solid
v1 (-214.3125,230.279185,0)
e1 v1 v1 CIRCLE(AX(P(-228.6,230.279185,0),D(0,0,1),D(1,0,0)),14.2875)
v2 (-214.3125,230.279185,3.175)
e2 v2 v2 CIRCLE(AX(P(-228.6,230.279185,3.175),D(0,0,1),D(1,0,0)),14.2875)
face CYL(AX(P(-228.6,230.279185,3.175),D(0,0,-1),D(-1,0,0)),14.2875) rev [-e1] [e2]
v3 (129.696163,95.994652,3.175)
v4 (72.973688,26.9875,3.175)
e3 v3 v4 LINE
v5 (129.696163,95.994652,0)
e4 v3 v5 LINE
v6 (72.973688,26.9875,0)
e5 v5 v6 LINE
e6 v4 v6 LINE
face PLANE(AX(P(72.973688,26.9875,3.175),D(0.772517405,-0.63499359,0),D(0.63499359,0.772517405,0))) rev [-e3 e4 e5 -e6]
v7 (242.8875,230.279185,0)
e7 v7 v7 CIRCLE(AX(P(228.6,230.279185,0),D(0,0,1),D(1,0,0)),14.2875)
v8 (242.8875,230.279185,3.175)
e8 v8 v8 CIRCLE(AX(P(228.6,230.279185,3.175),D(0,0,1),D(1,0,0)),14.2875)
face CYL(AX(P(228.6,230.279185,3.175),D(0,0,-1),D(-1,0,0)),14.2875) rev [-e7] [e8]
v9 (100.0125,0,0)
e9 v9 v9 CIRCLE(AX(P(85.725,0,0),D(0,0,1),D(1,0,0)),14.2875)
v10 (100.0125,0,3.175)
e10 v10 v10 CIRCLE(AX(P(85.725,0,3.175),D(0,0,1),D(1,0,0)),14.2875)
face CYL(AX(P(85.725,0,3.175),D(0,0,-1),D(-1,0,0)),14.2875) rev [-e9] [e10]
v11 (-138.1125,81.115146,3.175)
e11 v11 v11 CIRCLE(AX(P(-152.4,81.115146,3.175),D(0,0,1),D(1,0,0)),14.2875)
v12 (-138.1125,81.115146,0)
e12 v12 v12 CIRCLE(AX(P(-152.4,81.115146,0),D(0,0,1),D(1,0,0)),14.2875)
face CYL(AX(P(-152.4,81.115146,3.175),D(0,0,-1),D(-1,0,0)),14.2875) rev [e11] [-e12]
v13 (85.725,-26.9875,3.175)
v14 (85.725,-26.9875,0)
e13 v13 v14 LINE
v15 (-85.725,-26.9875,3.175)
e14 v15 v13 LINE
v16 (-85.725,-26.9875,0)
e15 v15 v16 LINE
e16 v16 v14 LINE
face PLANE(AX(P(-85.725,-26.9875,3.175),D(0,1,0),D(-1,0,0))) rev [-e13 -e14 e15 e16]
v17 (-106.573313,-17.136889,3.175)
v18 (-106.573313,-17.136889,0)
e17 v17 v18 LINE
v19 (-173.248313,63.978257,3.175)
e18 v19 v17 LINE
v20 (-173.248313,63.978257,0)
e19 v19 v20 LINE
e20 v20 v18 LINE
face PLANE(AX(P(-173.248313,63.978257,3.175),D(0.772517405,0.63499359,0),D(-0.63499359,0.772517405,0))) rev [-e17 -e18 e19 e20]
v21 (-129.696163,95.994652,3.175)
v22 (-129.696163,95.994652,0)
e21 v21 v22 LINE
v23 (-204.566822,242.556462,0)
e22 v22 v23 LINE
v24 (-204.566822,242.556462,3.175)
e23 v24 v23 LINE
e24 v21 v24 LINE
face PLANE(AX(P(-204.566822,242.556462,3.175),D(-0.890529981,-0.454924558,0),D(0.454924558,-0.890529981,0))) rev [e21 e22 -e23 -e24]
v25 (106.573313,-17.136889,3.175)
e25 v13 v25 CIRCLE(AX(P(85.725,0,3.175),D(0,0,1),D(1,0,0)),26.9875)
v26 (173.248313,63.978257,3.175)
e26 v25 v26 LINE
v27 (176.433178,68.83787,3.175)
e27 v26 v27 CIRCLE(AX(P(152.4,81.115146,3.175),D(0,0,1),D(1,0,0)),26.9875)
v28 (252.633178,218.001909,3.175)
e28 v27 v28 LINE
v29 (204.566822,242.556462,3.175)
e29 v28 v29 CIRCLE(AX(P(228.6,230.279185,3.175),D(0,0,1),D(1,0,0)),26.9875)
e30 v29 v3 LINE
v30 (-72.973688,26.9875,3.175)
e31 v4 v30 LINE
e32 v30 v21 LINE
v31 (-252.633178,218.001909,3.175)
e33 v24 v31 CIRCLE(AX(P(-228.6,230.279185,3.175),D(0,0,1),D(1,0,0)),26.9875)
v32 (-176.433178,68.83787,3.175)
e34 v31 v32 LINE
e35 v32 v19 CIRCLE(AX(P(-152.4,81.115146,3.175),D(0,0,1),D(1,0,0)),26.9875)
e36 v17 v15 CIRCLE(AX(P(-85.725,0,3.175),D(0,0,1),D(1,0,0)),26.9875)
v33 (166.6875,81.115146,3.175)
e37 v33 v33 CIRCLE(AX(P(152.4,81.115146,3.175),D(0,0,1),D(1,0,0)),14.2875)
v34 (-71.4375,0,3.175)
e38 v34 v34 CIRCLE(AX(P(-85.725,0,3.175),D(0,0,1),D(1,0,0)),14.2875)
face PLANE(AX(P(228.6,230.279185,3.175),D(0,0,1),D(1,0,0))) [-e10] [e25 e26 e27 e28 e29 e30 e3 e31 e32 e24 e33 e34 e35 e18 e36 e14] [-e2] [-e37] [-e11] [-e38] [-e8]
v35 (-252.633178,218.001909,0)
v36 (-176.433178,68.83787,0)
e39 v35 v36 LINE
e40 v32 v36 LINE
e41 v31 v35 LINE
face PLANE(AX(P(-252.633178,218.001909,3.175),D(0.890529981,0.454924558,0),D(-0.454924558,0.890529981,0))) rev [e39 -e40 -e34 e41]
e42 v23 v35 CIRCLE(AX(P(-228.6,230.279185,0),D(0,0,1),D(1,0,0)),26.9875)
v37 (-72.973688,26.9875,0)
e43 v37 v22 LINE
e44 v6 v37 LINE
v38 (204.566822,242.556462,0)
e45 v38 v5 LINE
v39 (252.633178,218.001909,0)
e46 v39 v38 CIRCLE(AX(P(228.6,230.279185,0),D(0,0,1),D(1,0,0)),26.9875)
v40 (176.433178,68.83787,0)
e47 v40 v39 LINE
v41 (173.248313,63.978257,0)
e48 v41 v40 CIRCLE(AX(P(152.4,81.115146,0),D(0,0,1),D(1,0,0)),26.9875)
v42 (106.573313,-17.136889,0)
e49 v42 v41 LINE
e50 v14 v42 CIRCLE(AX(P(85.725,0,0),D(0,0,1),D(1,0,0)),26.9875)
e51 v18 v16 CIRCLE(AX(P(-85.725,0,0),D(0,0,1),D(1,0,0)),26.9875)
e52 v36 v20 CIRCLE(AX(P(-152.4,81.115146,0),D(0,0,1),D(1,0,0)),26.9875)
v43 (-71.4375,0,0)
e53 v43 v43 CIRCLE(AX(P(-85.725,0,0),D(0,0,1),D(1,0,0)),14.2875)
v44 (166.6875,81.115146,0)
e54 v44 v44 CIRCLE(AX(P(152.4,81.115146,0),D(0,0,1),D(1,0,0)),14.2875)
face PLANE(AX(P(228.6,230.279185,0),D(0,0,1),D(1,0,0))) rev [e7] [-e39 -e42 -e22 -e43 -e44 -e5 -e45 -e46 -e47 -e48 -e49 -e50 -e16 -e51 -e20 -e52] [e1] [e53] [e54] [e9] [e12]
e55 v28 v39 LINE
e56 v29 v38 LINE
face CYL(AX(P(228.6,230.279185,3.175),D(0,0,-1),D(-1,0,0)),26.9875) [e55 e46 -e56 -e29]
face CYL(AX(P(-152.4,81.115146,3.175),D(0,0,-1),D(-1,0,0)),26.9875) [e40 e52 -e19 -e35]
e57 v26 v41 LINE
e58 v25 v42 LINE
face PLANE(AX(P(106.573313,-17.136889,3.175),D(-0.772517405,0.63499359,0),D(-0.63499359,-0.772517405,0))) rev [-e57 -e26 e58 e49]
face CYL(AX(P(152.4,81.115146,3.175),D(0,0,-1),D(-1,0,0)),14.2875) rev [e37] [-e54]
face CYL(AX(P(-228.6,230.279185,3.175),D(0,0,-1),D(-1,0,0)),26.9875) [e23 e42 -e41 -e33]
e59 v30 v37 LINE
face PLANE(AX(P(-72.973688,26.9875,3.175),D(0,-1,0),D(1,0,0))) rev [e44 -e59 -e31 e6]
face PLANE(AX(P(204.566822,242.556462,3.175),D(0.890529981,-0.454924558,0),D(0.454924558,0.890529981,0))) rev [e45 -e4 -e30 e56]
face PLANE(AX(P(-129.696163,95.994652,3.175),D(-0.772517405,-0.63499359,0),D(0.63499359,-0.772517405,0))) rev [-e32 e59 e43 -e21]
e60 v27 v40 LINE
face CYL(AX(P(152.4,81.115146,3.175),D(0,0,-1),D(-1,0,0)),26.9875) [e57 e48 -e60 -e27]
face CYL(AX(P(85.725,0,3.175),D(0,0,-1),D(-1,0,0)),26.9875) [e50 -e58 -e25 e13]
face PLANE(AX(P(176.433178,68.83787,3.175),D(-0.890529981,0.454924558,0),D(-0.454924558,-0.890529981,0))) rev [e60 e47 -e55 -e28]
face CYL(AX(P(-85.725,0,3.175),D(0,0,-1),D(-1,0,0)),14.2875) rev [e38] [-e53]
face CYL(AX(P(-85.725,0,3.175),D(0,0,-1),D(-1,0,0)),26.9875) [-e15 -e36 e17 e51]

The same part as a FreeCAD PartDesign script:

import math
import FreeCAD as App
import Part
import Sketcher

V = App.Vector
Q = App.Units.Quantity

doc = App.newDocument("Part")
body = doc.addObject("PartDesign::Body", "Body")

sketch1 = body.newObject("Sketcher::SketchObject", "Sketch")
sketch1.AttachmentSupport = (doc.getObject("XY_Plane"), [""])
sketch1.MapMode = "FlatFace"
sketch1.addGeometry(Part.LineSegment(V(-252.633178, 218.001909, 0), V(-176.433178, 68.83787, 0)), False)
sketch1.addGeometry(Part.ArcOfCircle(Part.Circle(V(-152.4, 81.115146, 0), V(0, 0, 1), 26.9875), math.radians(-152.93992), math.radians(-140.580491)), False)
sketch1.addGeometry(Part.LineSegment(V(-173.248313, 63.978257, 0), V(-106.573313, -17.136889, 0)), False)
sketch1.addGeometry(Part.ArcOfCircle(Part.Circle(V(-85.725, 0, 0), V(0, 0, 1), 26.9875), math.radians(-140.580491), math.radians(-90)), False)
sketch1.addGeometry(Part.LineSegment(V(-85.725, -26.9875, 0), V(85.725, -26.9875, 0)), False)
sketch1.addGeometry(Part.ArcOfCircle(Part.Circle(V(85.725, 0, 0), V(0, 0, 1), 26.9875), math.radians(-90), math.radians(-39.419509)), False)
sketch1.addGeometry(Part.LineSegment(V(106.573313, -17.136889, 0), V(173.248313, 63.978257, 0)), False)
sketch1.addGeometry(Part.ArcOfCircle(Part.Circle(V(152.4, 81.115146, 0), V(0, 0, 1), 26.9875), math.radians(-39.419509), math.radians(-27.06008)), False)
sketch1.addGeometry(Part.LineSegment(V(176.433178, 68.83787, 0), V(252.633178, 218.001909, 0)), False)
sketch1.addGeometry(Part.ArcOfCircle(Part.Circle(V(228.6, 230.279185, 0), V(0, 0, 1), 26.9875), math.radians(-27.06008), math.radians(152.93992)), False)
sketch1.addGeometry(Part.LineSegment(V(204.566822, 242.556462, 0), V(129.696163, 95.994652, 0)), False)
sketch1.addGeometry(Part.LineSegment(V(129.696163, 95.994652, 0), V(72.973688, 26.9875, 0)), False)
sketch1.addGeometry(Part.LineSegment(V(72.973688, 26.9875, 0), V(-72.973688, 26.9875, 0)), False)
sketch1.addGeometry(Part.LineSegment(V(-72.973688, 26.9875, 0), V(-129.696163, 95.994652, 0)), False)
sketch1.addGeometry(Part.LineSegment(V(-129.696163, 95.994652, 0), V(-204.566822, 242.556462, 0)), False)
sketch1.addGeometry(Part.ArcOfCircle(Part.Circle(V(-228.6, 230.279185, 0), V(0, 0, 1), 26.9875), math.radians(27.06008), math.radians(207.06008)), False)
sketch1.addGeometry(Part.Circle(V(-85.725, 0, 0), V(0, 0, 1), 14.2875), False)
sketch1.addGeometry(Part.Circle(V(-152.4, 81.115146, 0), V(0, 0, 1), 14.2875), False)
sketch1.addGeometry(Part.Circle(V(85.725, 0, 0), V(0, 0, 1), 14.2875), False)
sketch1.addGeometry(Part.Circle(V(152.4, 81.115146, 0), V(0, 0, 1), 14.2875), False)
sketch1.addGeometry(Part.Circle(V(-228.6, 230.279185, 0), V(0, 0, 1), 14.2875), False)
sketch1.addGeometry(Part.Circle(V(228.6, 230.279185, 0), V(0, 0, 1), 14.2875), False)
sketch1.addConstraint(Sketcher.Constraint("Tangent", 0, 2, 1, 1))
sketch1.addConstraint(Sketcher.Constraint("Tangent", 1, 2, 2, 1))
sketch1.addConstraint(Sketcher.Constraint("Tangent", 2, 2, 3, 1))
sketch1.addConstraint(Sketcher.Constraint("Tangent", 3, 2, 4, 1))
sketch1.addConstraint(Sketcher.Constraint("Tangent", 4, 2, 5, 1))
sketch1.addConstraint(Sketcher.Constraint("Tangent", 5, 2, 6, 1))
sketch1.addConstraint(Sketcher.Constraint("Tangent", 6, 2, 7, 1))
sketch1.addConstraint(Sketcher.Constraint("Tangent", 7, 2, 8, 1))
sketch1.addConstraint(Sketcher.Constraint("Tangent", 8, 2, 9, 1))
sketch1.addConstraint(Sketcher.Constraint("Tangent", 9, 2, 10, 1))
sketch1.addConstraint(Sketcher.Constraint("Coincident", 10, 2, 11, 1))
sketch1.addConstraint(Sketcher.Constraint("Coincident", 11, 2, 12, 1))
sketch1.addConstraint(Sketcher.Constraint("Coincident", 12, 2, 13, 1))
sketch1.addConstraint(Sketcher.Constraint("Coincident", 13, 2, 14, 1))
sketch1.addConstraint(Sketcher.Constraint("Tangent", 14, 2, 15, 1))
sketch1.addConstraint(Sketcher.Constraint("Tangent", 15, 2, 0, 1))
sketch1.addConstraint(Sketcher.Constraint("Horizontal", 4))
sketch1.addConstraint(Sketcher.Constraint("Horizontal", 12))
sketch1.addConstraint(Sketcher.Constraint("Coincident", 16, 3, 3, 3))
sketch1.addConstraint(Sketcher.Constraint("Coincident", 17, 3, 1, 3))
sketch1.addConstraint(Sketcher.Constraint("Coincident", 18, 3, 5, 3))
sketch1.addConstraint(Sketcher.Constraint("Coincident", 19, 3, 7, 3))
sketch1.addConstraint(Sketcher.Constraint("Coincident", 20, 3, 15, 3))
sketch1.addConstraint(Sketcher.Constraint("Coincident", 21, 3, 9, 3))
sketch1.addConstraint(Sketcher.Constraint("Equal", 1, 3))
sketch1.addConstraint(Sketcher.Constraint("Equal", 3, 5))
sketch1.addConstraint(Sketcher.Constraint("Equal", 5, 7))
sketch1.addConstraint(Sketcher.Constraint("Equal", 7, 9))
sketch1.addConstraint(Sketcher.Constraint("Equal", 9, 15))
sketch1.addConstraint(Sketcher.Constraint("Equal", 16, 17))
sketch1.addConstraint(Sketcher.Constraint("Equal", 17, 18))
sketch1.addConstraint(Sketcher.Constraint("Equal", 18, 19))
sketch1.addConstraint(Sketcher.Constraint("Equal", 19, 20))
sketch1.addConstraint(Sketcher.Constraint("Equal", 20, 21))
sketch1.addConstraint(Sketcher.Constraint("Symmetric", 3, 3, 5, 3, -1, 1))
sketch1.addConstraint(Sketcher.Constraint("Symmetric", 1, 3, 7, 3, -2))
sketch1.addConstraint(Sketcher.Constraint("Symmetric", 9, 3, 15, 3, -2))
sketch1.addConstraint(Sketcher.Constraint("Symmetric", 10, 2, 13, 2, -2))
sketch1.addConstraint(Sketcher.Constraint("Parallel", 8, 10))
sketch1.addConstraint(Sketcher.Constraint("Parallel", 6, 11))
sketch1.addConstraint(Sketcher.Constraint("Parallel", 2, 13))
sketch1.addConstraint(Sketcher.Constraint("Diameter", 16, Q("1.125 in")))
sketch1.addConstraint(Sketcher.Constraint("DistanceX", 1, 3, -1, 1, Q("6 in")))
sketch1.addConstraint(Sketcher.Constraint("DistanceX", -1, 1, 9, 3, Q("9 in")))
sketch1.addConstraint(Sketcher.Constraint("Radius", 1, Q("1.0625 in")))
sketch1.addConstraint(Sketcher.Constraint("DistanceX", 4, 1, 4, 2, Q("6.75 in")))
sketch1.addConstraint(Sketcher.Constraint("DistanceY", -1, 1, 11, 2, Q("1.0625 in")))
sketch1.addConstraint(Sketcher.Constraint("Distance", 0, Q("6.5945 in")))
sketch1.addConstraint(Sketcher.Constraint("Distance", 2, Q("4.1339 in")))
sketch1.addConstraint(Sketcher.Constraint("DistanceX", 12, 2, 12, 1, 145.947376))
pad1 = body.newObject("PartDesign::Pad", "Pad")
pad1.Profile = sketch1
pad1.Length = Q("0.125 in")

doc.recompute()
